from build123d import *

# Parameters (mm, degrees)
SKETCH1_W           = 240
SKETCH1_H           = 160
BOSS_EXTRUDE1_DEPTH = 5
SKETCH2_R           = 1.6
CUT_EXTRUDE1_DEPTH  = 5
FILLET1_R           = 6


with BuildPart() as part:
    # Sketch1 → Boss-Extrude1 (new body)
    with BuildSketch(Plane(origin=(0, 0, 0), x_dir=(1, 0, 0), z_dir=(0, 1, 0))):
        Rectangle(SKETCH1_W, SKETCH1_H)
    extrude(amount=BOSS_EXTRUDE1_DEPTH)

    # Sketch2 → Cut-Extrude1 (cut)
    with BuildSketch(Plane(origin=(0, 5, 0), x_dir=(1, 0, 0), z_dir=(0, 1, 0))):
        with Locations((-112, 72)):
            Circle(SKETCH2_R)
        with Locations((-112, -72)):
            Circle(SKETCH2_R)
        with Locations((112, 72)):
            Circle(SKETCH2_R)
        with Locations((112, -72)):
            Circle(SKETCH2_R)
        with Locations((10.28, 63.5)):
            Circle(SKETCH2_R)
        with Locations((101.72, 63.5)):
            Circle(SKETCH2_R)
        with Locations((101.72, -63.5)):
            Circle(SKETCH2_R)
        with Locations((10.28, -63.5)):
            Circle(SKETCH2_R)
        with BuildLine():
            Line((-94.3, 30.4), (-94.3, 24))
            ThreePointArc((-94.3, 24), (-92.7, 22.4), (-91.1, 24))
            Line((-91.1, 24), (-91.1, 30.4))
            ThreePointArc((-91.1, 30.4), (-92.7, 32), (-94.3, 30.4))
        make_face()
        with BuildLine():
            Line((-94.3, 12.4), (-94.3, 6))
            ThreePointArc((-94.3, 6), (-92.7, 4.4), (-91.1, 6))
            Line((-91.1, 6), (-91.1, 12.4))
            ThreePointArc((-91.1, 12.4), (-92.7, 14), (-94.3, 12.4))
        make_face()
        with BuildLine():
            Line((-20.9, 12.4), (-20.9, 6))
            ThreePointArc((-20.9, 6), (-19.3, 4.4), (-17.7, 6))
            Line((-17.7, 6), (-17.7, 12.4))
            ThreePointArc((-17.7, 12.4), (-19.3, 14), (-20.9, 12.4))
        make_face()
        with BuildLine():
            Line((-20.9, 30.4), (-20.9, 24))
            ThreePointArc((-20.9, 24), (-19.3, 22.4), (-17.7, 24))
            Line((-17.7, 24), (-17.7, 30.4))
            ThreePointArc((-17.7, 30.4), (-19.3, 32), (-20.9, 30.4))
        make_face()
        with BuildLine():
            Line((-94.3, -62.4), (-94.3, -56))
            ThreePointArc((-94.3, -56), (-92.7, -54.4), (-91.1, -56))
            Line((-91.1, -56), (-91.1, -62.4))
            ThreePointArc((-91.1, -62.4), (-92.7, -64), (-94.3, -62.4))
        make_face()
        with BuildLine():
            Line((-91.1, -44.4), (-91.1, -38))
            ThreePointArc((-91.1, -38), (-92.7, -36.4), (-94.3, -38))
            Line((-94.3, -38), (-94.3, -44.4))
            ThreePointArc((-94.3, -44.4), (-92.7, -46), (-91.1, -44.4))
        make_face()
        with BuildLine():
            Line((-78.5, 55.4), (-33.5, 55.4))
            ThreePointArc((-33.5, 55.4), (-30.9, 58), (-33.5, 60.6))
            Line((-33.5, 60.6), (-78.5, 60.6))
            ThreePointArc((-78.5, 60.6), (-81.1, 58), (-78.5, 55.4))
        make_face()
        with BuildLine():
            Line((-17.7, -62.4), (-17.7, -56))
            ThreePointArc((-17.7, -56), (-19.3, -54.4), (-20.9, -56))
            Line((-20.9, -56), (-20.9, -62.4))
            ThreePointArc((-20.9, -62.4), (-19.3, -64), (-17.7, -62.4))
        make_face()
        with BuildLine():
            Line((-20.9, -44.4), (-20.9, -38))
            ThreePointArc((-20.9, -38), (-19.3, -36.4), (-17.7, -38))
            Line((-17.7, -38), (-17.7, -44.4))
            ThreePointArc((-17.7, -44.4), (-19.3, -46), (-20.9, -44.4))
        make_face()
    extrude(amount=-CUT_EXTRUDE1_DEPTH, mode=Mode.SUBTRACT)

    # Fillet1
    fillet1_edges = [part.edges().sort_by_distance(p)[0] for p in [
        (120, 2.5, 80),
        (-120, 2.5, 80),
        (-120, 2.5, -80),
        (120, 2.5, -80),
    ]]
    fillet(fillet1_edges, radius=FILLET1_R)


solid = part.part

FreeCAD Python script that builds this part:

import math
import FreeCAD as App
import Part
import Sketcher
Q = App.Units.Quantity


def edges_at(feature, points):
    """Names of the edges that pass closest to the given points."""
    edges = feature.Shape.Edges
    near = lambda p: min(range(len(edges)), key=lambda i: edges[i].distToShape(Part.Vertex(*p))[0])
    return sorted({f"Edge{near(p) + 1}" for p in points})

doc = App.newDocument("Part")
params = doc.addObject("Spreadsheet::Sheet", "Params")
for row, (alias, value) in enumerate([
    ("sketch1_width", "240 mm"),
    ("sketch1_height", "160 mm"),
    ("pad1_length", "5 mm"),
    ("sketch2_diameter", "3.2 mm"),
    ("sketch2_radius", "2.6 mm"),
    ("sketch2_width", "45 mm"),
    ("sketch2_height", "6.4 mm"),
    ("pocket1_length", "5 mm"),
    ("fillet_radius", "6 mm"),
], start=1):
    params.set(f"A{row}", alias)
    params.set(f"B{row}", "=" + value)
    params.setAlias(f"B{row}", alias)

body = doc.addObject("PartDesign::Body", "Body")

# Sketch on XZ plane
sketch1 = doc.addObject("Sketcher::SketchObject", "Sketch")
body.addObject(sketch1)
sketch1.AttachmentSupport = (doc.XZ_Plane, [""])
sketch1.MapMode = "FlatFace"
sketch1.addGeometry([
    Part.LineSegment(App.Vector(-120, -80, 0), App.Vector(-120, 80, 0)),
    Part.LineSegment(App.Vector(-120, 80, 0), App.Vector(120, 80, 0)),
    Part.LineSegment(App.Vector(120, 80, 0), App.Vector(120, -80, 0)),
    Part.LineSegment(App.Vector(120, -80, 0), App.Vector(-120, -80, 0)),
], False)
sketch1.addConstraint([
    Sketcher.Constraint("Coincident", 0, 2, 1, 1),
    Sketcher.Constraint("Coincident", 1, 2, 2, 1),
    Sketcher.Constraint("Coincident", 2, 2, 3, 1),
    Sketcher.Constraint("Coincident", 3, 2, 0, 1),
    Sketcher.Constraint("Vertical", 0),
    Sketcher.Constraint("Horizontal", 1),
    Sketcher.Constraint("Vertical", 2),
    Sketcher.Constraint("Horizontal", 3),
    Sketcher.Constraint("Symmetric", 0, 2, 2, 2, -1, 1),
    Sketcher.Constraint("DistanceX", 1, 1, 1, 2, Q("240 mm")),
    Sketcher.Constraint("DistanceY", 0, 1, 0, 2, Q("160 mm")),
])
sketch1.setExpression("Constraints[9]", "Params.sketch1_width")
sketch1.setExpression("Constraints[10]", "Params.sketch1_height")
pad1 = doc.addObject("PartDesign::Pad", "Pad")
body.addObject(pad1)
pad1.Profile = sketch1
pad1.setExpression("Length", "Params.pad1_length")
pad1.Reversed = True

# Sketch on XZ plane
sketch2 = doc.addObject("Sketcher::SketchObject", "Sketch001")
body.addObject(sketch2)
sketch2.AttachmentSupport = (doc.XZ_Plane, [""])
sketch2.MapMode = "FlatFace"
sketch2.AttachmentOffset = App.Placement(App.Vector(0, 0, -5), App.Rotation())
sketch2.addGeometry([
    Part.Circle(App.Vector(-112, -72, 0), App.Vector(0, 0, 1), 1.6),  # 0
    Part.Circle(App.Vector(-112, 72, 0), App.Vector(0, 0, 1), 1.6),  # 1
    Part.Circle(App.Vector(112, -72, 0), App.Vector(0, 0, 1), 1.6),  # 2
    Part.Circle(App.Vector(112, 72, 0), App.Vector(0, 0, 1), 1.6),  # 3
    Part.Circle(App.Vector(10.3, -63.5, 0), App.Vector(0, 0, 1), 1.6),  # 4
    Part.Circle(App.Vector(101.7, -63.5, 0), App.Vector(0, 0, 1), 1.6),  # 5
    Part.Circle(App.Vector(101.7, 63.5, 0), App.Vector(0, 0, 1), 1.6),  # 6
    Part.Circle(App.Vector(10.3, 63.5, 0), App.Vector(0, 0, 1), 1.6),  # 7
    Part.LineSegment(App.Vector(-94.3, -30.4, 0), App.Vector(-94.3, -24, 0)),  # 8
    Part.ArcOfCircle(Part.Circle(App.Vector(-92.7, -24, 0), App.Vector(0, 0, 1), 1.6), math.radians(0), math.radians(180)),  # 9
    Part.LineSegment(App.Vector(-91.1, -24, 0), App.Vector(-91.1, -30.4, 0)),  # 10
    Part.ArcOfCircle(Part.Circle(App.Vector(-92.7, -30.4, 0), App.Vector(0, 0, 1), 1.6), math.radians(180), math.radians(360)),  # 11
    Part.LineSegment(App.Vector(-94.3, -12.4, 0), App.Vector(-94.3, -6, 0)),  # 12
    Part.ArcOfCircle(Part.Circle(App.Vector(-92.7, -6, 0), App.Vector(0, 0, 1), 1.6), math.radians(0), math.radians(180)),  # 13
    Part.LineSegment(App.Vector(-91.1, -6, 0), App.Vector(-91.1, -12.4, 0)),  # 14
    Part.ArcOfCircle(Part.Circle(App.Vector(-92.7, -12.4, 0), App.Vector(0, 0, 1), 1.6), math.radians(180), math.radians(360)),  # 15
    Part.LineSegment(App.Vector(-20.9, -12.4, 0), App.Vector(-20.9, -6, 0)),  # 16
    Part.ArcOfCircle(Part.Circle(App.Vector(-19.3, -6, 0), App.Vector(0, 0, 1), 1.6), math.radians(0), math.radians(180)),  # 17
    Part.LineSegment(App.Vector(-17.7, -6, 0), App.Vector(-17.7, -12.4, 0)),  # 18
    Part.ArcOfCircle(Part.Circle(App.Vector(-19.3, -12.4, 0), App.Vector(0, 0, 1), 1.6), math.radians(180), math.radians(360)),  # 19
    Part.LineSegment(App.Vector(-20.9, -30.4, 0), App.Vector(-20.9, -24, 0)),  # 20
    Part.ArcOfCircle(Part.Circle(App.Vector(-19.3, -24, 0), App.Vector(0, 0, 1), 1.6), math.radians(0), math.radians(180)),  # 21
    Part.LineSegment(App.Vector(-17.7, -24, 0), App.Vector(-17.7, -30.4, 0)),  # 22
    Part.ArcOfCircle(Part.Circle(App.Vector(-19.3, -30.4, 0), App.Vector(0, 0, 1), 1.6), math.radians(180), math.radians(360)),  # 23
    Part.LineSegment(App.Vector(-94.3, 56, 0), App.Vector(-94.3, 62.4, 0)),  # 24
    Part.ArcOfCircle(Part.Circle(App.Vector(-92.7, 62.4, 0), App.Vector(0, 0, 1), 1.6), math.radians(0), math.radians(180)),  # 25
    Part.LineSegment(App.Vector(-91.1, 62.4, 0), App.Vector(-91.1, 56, 0)),  # 26
    Part.ArcOfCircle(Part.Circle(App.Vector(-92.7, 56, 0), App.Vector(0, 0, 1), 1.6), math.radians(180), math.radians(360)),  # 27
    Part.LineSegment(App.Vector(-91.1, 44.4, 0), App.Vector(-91.1, 38, 0)),  # 28
    Part.ArcOfCircle(Part.Circle(App.Vector(-92.7, 38, 0), App.Vector(0, 0, 1), 1.6), math.radians(180), math.radians(360)),  # 29
    Part.LineSegment(App.Vector(-94.3, 38, 0), App.Vector(-94.3, 44.4, 0)),  # 30
    Part.ArcOfCircle(Part.Circle(App.Vector(-92.7, 44.4, 0), App.Vector(0, 0, 1), 1.6), math.radians(0), math.radians(180)),  # 31
    Part.LineSegment(App.Vector(-78.5, -55.4, 0), App.Vector(-33.5, -55.4, 0)),  # 32
    Part.ArcOfCircle(Part.Circle(App.Vector(-33.5, -58, 0), App.Vector(0, 0, 1), 2.6), math.radians(-90), math.radians(90)),  # 33
    Part.LineSegment(App.Vector(-33.5, -60.6, 0), App.Vector(-78.5, -60.6, 0)),  # 34
    Part.ArcOfCircle(Part.Circle(App.Vector(-78.5, -58, 0), App.Vector(0, 0, 1), 2.6), math.radians(90), math.radians(270)),  # 35
    Part.LineSegment(App.Vector(-17.7, 62.4, 0), App.Vector(-17.7, 56, 0)),  # 36
    Part.ArcOfCircle(Part.Circle(App.Vector(-19.3, 56, 0), App.Vector(0, 0, 1), 1.6), math.radians(180), math.radians(360)),  # 37
    Part.LineSegment(App.Vector(-20.9, 56, 0), App.Vector(-20.9, 62.4, 0)),  # 38
    Part.ArcOfCircle(Part.Circle(App.Vector(-19.3, 62.4, 0), App.Vector(0, 0, 1), 1.6), math.radians(0), math.radians(180)),  # 39
    Part.LineSegment(App.Vector(-20.9, 38, 0), App.Vector(-20.9, 44.4, 0)),  # 40
    Part.ArcOfCircle(Part.Circle(App.Vector(-19.3, 44.4, 0), App.Vector(0, 0, 1), 1.6), math.radians(0), math.radians(180)),  # 41
    Part.LineSegment(App.Vector(-17.7, 44.4, 0), App.Vector(-17.7, 38, 0)),  # 42
    Part.ArcOfCircle(Part.Circle(App.Vector(-19.3, 38, 0), App.Vector(0, 0, 1), 1.6), math.radians(180), math.radians(360)),  # 43
], False)
sketch2.addConstraint([
    Sketcher.Constraint("Tangent", 8, 2, 9, 2),
    Sketcher.Constraint("Tangent", 9, 1, 10, 1),
    Sketcher.Constraint("Tangent", 10, 2, 11, 2),
    Sketcher.Constraint("Tangent", 11, 1, 8, 1),
    Sketcher.Constraint("Tangent", 12, 2, 13, 2),
    Sketcher.Constraint("Tangent", 13, 1, 14, 1),
    Sketcher.Constraint("Tangent", 14, 2, 15, 2),
    Sketcher.Constraint("Tangent", 15, 1, 12, 1),
    Sketcher.Constraint("Tangent", 16, 2, 17, 2),
    Sketcher.Constraint("Tangent", 17, 1, 18, 1),
    Sketcher.Constraint("Tangent", 18, 2, 19, 2),
    Sketcher.Constraint("Tangent", 19, 1, 16, 1),
    Sketcher.Constraint("Tangent", 20, 2, 21, 2),
    Sketcher.Constraint("Tangent", 21, 1, 22, 1),
    Sketcher.Constraint("Tangent", 22, 2, 23, 2),
    Sketcher.Constraint("Tangent", 23, 1, 20, 1),
    Sketcher.Constraint("Tangent", 24, 2, 25, 2),
    Sketcher.Constraint("Tangent", 25, 1, 26, 1),
    Sketcher.Constraint("Tangent", 26, 2, 27, 2),
    Sketcher.Constraint("Tangent", 27, 1, 24, 1),
    Sketcher.Constraint("Tangent", 28, 2, 29, 2),
    Sketcher.Constraint("Tangent", 29, 1, 30, 1),
    Sketcher.Constraint("Tangent", 30, 2, 31, 2),
    Sketcher.Constraint("Tangent", 31, 1, 28, 1),
    Sketcher.Constraint("Tangent", 32, 2, 33, 2),
    Sketcher.Constraint("Tangent", 33, 1, 34, 1),
    Sketcher.Constraint("Tangent", 34, 2, 35, 2),
    Sketcher.Constraint("Tangent", 35, 1, 32, 1),
    Sketcher.Constraint("Tangent", 36, 2, 37, 2),
    Sketcher.Constraint("Tangent", 37, 1, 38, 1),
    Sketcher.Constraint("Tangent", 38, 2, 39, 2),
    Sketcher.Constraint("Tangent", 39, 1, 36, 1),
    Sketcher.Constraint("Tangent", 40, 2, 41, 2),
    Sketcher.Constraint("Tangent", 41, 1, 42, 1),
    Sketcher.Constraint("Tangent", 42, 2, 43, 2),
    Sketcher.Constraint("Tangent", 43, 1, 40, 1),
    Sketcher.Constraint("Vertical", 8),
    Sketcher.Constraint("Vertical", 10),
    Sketcher.Constraint("Vertical", 12),
    Sketcher.Constraint("Vertical", 14),
    Sketcher.Constraint("Vertical", 16),
    Sketcher.Constraint("Vertical", 18),
    Sketcher.Constraint("Vertical", 20),
    Sketcher.Constraint("Vertical", 22),
    Sketcher.Constraint("Vertical", 24),
    Sketcher.Constraint("Vertical", 26),
    Sketcher.Constraint("Vertical", 28),
    Sketcher.Constraint("Vertical", 30),
    Sketcher.Constraint("Horizontal", 32),
    Sketcher.Constraint("Horizontal", 34),
    Sketcher.Constraint("Vertical", 36),
    Sketcher.Constraint("Vertical", 38),
    Sketcher.Constraint("Vertical", 40),
    Sketcher.Constraint("Vertical", 42),
    Sketcher.Constraint("Equal", 0, 1),
    Sketcher.Constraint("Equal", 1, 2),
    Sketcher.Constraint("Equal", 2, 3),
    Sketcher.Constraint("Equal", 3, 4),
    Sketcher.Constraint("Equal", 4, 5),
    Sketcher.Constraint("Equal", 5, 6),
    Sketcher.Constraint("Equal", 6, 7),
    Sketcher.Constraint("Equal", 7, 9),
    Sketcher.Constraint("Equal", 11, 13),
    Sketcher.Constraint("Equal", 15, 17),
    Sketcher.Constraint("Equal", 19, 21),
    Sketcher.Constraint("Equal", 23, 25),
    Sketcher.Constraint("Equal", 27, 29),
    Sketcher.Constraint("Equal", 31, 37),
    Sketcher.Constraint("Equal", 39, 41),
    Sketcher.Constraint("Symmetric", 1, 3, 2, 3, -1, 1),
    Sketcher.Constraint("Symmetric", 0, 3, 3, 3, -1, 1),
    Sketcher.Constraint("Symmetric", 0, 3, 2, 3, -2),
    Sketcher.Constraint("Symmetric", 5, 3, 6, 3, -1),
    Sketcher.Constraint("Symmetric", 4, 3, 7, 3, -1),
    Sketcher.Constraint("Horizontal", 4, 3, 5, 3),
    Sketcher.Constraint("Horizontal", 13, 3, 17, 3),
    Sketcher.Constraint("Horizontal", 15, 3, 19, 3),
    Sketcher.Constraint("Horizontal", 9, 3, 21, 3),
    Sketcher.Constraint("Horizontal", 11, 3, 23, 3),
    Sketcher.Constraint("Horizontal", 27, 3, 37, 3),
    Sketcher.Constraint("Horizontal", 25, 3, 39, 3),
    Sketcher.Constraint("Horizontal", 31, 3, 41, 3),
    Sketcher.Constraint("Horizontal", 29, 3, 43, 3),
    Sketcher.Constraint("Vertical", 11, 3, 13, 3),
    Sketcher.Constraint("Vertical", 19, 3, 21, 3),
    Sketcher.Constraint("Vertical", 15, 3, 25, 3),
    Sketcher.Constraint("Vertical", 27, 3, 29, 3),
    Sketcher.Constraint("Vertical", 23, 3, 37, 3),
    Sketcher.Constraint("Vertical", 39, 3, 41, 3),
    Sketcher.Constraint("Equal", 10, 12),
    Sketcher.Constraint("Equal", 22, 24),
    Sketcher.Constraint("Equal", 26, 28),
    Sketcher.Constraint("Diameter", 0, Q("3.2 mm")),
    Sketcher.Constraint("Radius", 33, Q("2.6 mm")),
    Sketcher.Constraint("DistanceX", 32, 1, 32, 2, Q("45 mm")),
    Sketcher.Constraint("DistanceY", 8, 1, 8, 2, Q("6.4 mm")),
    Sketcher.Constraint("DistanceX", 0, 3, -1, 1, Q("112 mm")),
    Sketcher.Constraint("DistanceY", 0, 3, -1, 1, Q("72 mm")),
    Sketcher.Constraint("DistanceY", 9, 3, -1, 1, Q("24 mm")),
    Sketcher.Constraint("DistanceY", 13, 3, -1, 1, Q("6 mm")),
    Sketcher.Constraint("DistanceY", -1, 1, 27, 3, Q("56 mm")),
    Sketcher.Constraint("DistanceY", -1, 1, 29, 3, Q("38 mm")),
    Sketcher.Constraint("DistanceY", 33, 3, -1, 1, Q("58 mm")),
    Sketcher.Constraint("DistanceY", 4, 3, -1, 1, Q("63.5 mm")),
    Sketcher.Constraint("DistanceX", 9, 3, -1, 1, Q("92.7 mm")),
    Sketcher.Constraint("DistanceX", 17, 3, -1, 1, Q("19.3 mm")),
    Sketcher.Constraint("DistanceX", 33, 3, -1, 1, Q("33.5 mm")),
    Sketcher.Constraint("DistanceX", -1, 1, 4, 3, Q("10.28 mm")),
    Sketcher.Constraint("DistanceX", -1, 1, 5, 3, Q("101.72 mm")),
])
sketch2.setExpression("Constraints[92]", "Params.sketch2_diameter")
sketch2.setExpression("Constraints[93]", "Params.sketch2_radius")
sketch2.setExpression("Constraints[94]", "Params.sketch2_width")
sketch2.setExpression("Constraints[95]", "Params.sketch2_height")
pocket1 = doc.addObject("PartDesign::Pocket", "Pocket")
body.addObject(pocket1)
pocket1.Profile = sketch2
pocket1.setExpression("Length", "Params.pocket1_length")
pocket1.Reversed = True
doc.recompute()

fillet = doc.addObject("PartDesign::Fillet", "Fillet")
body.addObject(fillet)
fillet.Base = (pocket1, edges_at(pocket1, [
    (120, 2.5, 80),
    (-120, 2.5, 80),
    (-120, 2.5, -80),
    (120, 2.5, -80),
]))
fillet.setExpression("Radius", "Params.fillet_radius")

doc.recompute()
